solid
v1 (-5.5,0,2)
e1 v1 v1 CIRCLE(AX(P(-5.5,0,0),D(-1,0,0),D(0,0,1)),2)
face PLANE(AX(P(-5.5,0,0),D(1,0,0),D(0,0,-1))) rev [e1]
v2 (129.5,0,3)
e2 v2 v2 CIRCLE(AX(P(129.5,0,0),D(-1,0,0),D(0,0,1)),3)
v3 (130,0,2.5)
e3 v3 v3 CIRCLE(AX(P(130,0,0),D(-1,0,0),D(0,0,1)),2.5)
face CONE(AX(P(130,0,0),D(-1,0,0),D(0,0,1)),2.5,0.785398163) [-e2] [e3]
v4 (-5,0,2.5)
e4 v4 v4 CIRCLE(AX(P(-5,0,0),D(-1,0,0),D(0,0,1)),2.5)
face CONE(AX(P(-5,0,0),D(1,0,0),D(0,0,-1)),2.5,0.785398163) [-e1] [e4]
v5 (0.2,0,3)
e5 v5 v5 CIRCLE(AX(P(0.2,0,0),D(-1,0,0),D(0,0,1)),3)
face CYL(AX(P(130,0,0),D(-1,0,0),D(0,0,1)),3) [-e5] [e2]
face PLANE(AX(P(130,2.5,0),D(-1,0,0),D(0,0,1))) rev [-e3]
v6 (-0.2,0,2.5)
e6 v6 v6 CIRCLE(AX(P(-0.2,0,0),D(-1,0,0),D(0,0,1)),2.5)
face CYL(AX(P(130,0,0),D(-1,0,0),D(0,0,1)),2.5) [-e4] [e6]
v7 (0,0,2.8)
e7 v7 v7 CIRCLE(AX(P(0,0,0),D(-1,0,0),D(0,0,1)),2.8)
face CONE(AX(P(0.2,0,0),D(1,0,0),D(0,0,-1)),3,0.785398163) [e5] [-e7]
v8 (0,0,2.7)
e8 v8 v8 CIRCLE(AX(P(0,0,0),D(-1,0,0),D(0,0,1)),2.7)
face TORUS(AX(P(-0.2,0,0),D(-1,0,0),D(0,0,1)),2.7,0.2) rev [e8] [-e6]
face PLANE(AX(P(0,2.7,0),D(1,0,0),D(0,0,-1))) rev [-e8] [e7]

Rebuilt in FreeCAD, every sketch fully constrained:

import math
import FreeCAD as App
import Part
import Sketcher
from FreeCAD import Vector
Q = App.Units.Quantity

doc = App.newDocument("Part")
body = doc.addObject("PartDesign::Body", "Body")

sketch1 = body.newObject("Sketcher::SketchObject", "Sketch")
sketch1.AttachmentSupport = (doc.getObject("XY_Plane"), [""])
sketch1.MapMode = "FlatFace"
sketch1.addGeometry([
    Part.LineSegment(Vector(-5.5, 2, 0), Vector(-5.5, 0, 0)),
    Part.LineSegment(Vector(-5.5, 0, 0), Vector(130, 0, 0)),
    Part.LineSegment(Vector(130, 0, 0), Vector(130, 2.5, 0)),
    Part.LineSegment(Vector(130, 2.5, 0), Vector(129.5, 3, 0)),
    Part.LineSegment(Vector(129.5, 3, 0), Vector(0.2, 3, 0)),
    Part.LineSegment(Vector(0.2, 3, 0), Vector(0, 2.8, 0)),
    Part.LineSegment(Vector(0, 2.8, 0), Vector(0, 2.7, 0)),
    Part.ArcOfCircle(Part.Circle(Vector(-0.2, 2.7, 0), Vector(0, 0, 1), 0.2), math.radians(-90), math.radians(0)),
    Part.LineSegment(Vector(-0.2, 2.5, 0), Vector(-5, 2.5, 0)),
    Part.LineSegment(Vector(-5, 2.5, 0), Vector(-5.5, 2, 0)),
], False)
sketch1.addConstraint([
    Sketcher.Constraint("Coincident", 0, 2, 1, 1),
    Sketcher.Constraint("Coincident", 1, 2, 2, 1),
    Sketcher.Constraint("Coincident", 2, 2, 3, 1),
    Sketcher.Constraint("Coincident", 3, 2, 4, 1),
    Sketcher.Constraint("Coincident", 4, 2, 5, 1),
    Sketcher.Constraint("Coincident", 5, 2, 6, 1),
    Sketcher.Constraint("Tangent", 6, 2, 7, 2),
    Sketcher.Constraint("Tangent", 7, 1, 8, 1),
    Sketcher.Constraint("Coincident", 8, 2, 9, 1),
    Sketcher.Constraint("Coincident", 9, 2, 0, 1),
    Sketcher.Constraint("Vertical", 0),
    Sketcher.Constraint("Horizontal", 1),
    Sketcher.Constraint("Vertical", 2),
    Sketcher.Constraint("Horizontal", 4),
    Sketcher.Constraint("Vertical", 6),
    Sketcher.Constraint("Horizontal", 8),
    Sketcher.Constraint("PointOnObject", 0, 2, -1),
    Sketcher.Constraint("PointOnObject", 5, 2, -2),
    Sketcher.Constraint("Perpendicular", 3, 5),
    Sketcher.Constraint("Parallel", 5, 9),
    Sketcher.Constraint("Horizontal", 2, 2, 7, 1),
    Sketcher.Constraint("Equal", 3, 9),
    Sketcher.Constraint("Radius", 7, Q("0.2 mm")),
    Sketcher.Constraint("DistanceY", 0, 2, 0, 1, Q("2 mm")),
    Sketcher.Constraint("Angle", 3, Q("135 deg")),
    Sketcher.Constraint("DistanceX", 1, 1, 1, 2, Q("135.5 mm")),
    Sketcher.Constraint("DistanceX", 4, 2, 4, 1, Q("129.3 mm")),
    Sketcher.Constraint("DistanceX", 8, 2, 8, 1, Q("4.8 mm")),
    Sketcher.Constraint("DistanceY", 2, 1, 2, 2, Q("2.5 mm")),
])
revolution = body.newObject("PartDesign::Revolution", "Revolution")
revolution.Profile = sketch1
revolution.ReferenceAxis = (sketch1, ["H_Axis"])
revolution.Angle = 360

doc.recompute()
